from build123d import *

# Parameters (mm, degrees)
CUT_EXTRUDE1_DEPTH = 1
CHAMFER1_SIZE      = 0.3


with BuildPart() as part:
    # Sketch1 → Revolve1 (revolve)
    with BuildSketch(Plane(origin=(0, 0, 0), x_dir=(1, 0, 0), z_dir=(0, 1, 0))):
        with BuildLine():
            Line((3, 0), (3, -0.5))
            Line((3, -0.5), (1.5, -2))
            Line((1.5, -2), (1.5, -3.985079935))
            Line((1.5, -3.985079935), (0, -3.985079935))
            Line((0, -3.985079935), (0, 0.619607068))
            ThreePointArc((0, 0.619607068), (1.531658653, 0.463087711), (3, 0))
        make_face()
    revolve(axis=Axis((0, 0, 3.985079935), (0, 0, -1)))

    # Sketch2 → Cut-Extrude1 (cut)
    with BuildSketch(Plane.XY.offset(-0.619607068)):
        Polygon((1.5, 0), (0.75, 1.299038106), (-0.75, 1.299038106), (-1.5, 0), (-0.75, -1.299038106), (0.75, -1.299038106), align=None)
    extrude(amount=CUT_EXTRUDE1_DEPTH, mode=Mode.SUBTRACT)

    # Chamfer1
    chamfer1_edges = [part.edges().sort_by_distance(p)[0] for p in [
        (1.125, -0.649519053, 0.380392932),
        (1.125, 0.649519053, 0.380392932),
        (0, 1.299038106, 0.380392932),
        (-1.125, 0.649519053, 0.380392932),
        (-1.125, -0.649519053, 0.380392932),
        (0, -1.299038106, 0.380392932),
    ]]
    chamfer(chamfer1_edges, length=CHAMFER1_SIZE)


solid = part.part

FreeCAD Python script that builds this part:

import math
import FreeCAD as App
import Part
import Sketcher
from FreeCAD import Vector
Q = App.Units.Quantity


def edges_at(feature, points):
    """Names of the edges that pass closest to the given points."""
    edges = feature.Shape.Edges
    near = lambda p: min(range(len(edges)), key=lambda i: edges[i].distToShape(Part.Vertex(*p))[0])
    return sorted({f"Edge{near(p) + 1}" for p in points})

doc = App.newDocument("Part")
body = doc.addObject("PartDesign::Body", "Body")

sketch1 = body.newObject("Sketcher::SketchObject", "Sketch")
sketch1.AttachmentSupport = (doc.getObject("XZ_Plane"), [""])
sketch1.MapMode = "FlatFace"
sketch1.addGeometry(Part.LineSegment(Vector(3, 0.5, 0), Vector(3, 0, 0)), False)
sketch1.addGeometry(Part.ArcOfCircle(Part.Circle(Vector(0, 7, 0), Vector(0, 0, 1), 7.6), math.radians(-90), math.radians(-67)), False)
sketch1.addGeometry(Part.LineSegment(Vector(0, -0.6, 0), Vector(0, 4, 0)), False)
sketch1.addGeometry(Part.LineSegment(Vector(0, 4, 0), Vector(1.5, 4, 0)), False)
sketch1.addGeometry(Part.LineSegment(Vector(1.5, 4, 0), Vector(1.5, 2, 0)), False)
sketch1.addGeometry(Part.LineSegment(Vector(1.5, 2, 0), Vector(3, 0.5, 0)), False)
sketch1.addConstraint(Sketcher.Constraint("Coincident", 0, 2, 1, 2))
sketch1.addConstraint(Sketcher.Constraint("Coincident", 1, 1, 2, 1))
sketch1.addConstraint(Sketcher.Constraint("Coincident", 2, 2, 3, 1))
sketch1.addConstraint(Sketcher.Constraint("Coincident", 3, 2, 4, 1))
sketch1.addConstraint(Sketcher.Constraint("Coincident", 4, 2, 5, 1))
sketch1.addConstraint(Sketcher.Constraint("Coincident", 5, 2, 0, 1))
sketch1.addConstraint(Sketcher.Constraint("Vertical", 0))
sketch1.addConstraint(Sketcher.Constraint("Vertical", 2))
sketch1.addConstraint(Sketcher.Constraint("Horizontal", 3))
sketch1.addConstraint(Sketcher.Constraint("Vertical", 4))
sketch1.addConstraint(Sketcher.Constraint("PointOnObject", 1, 3, -2))
sketch1.addConstraint(Sketcher.Constraint("PointOnObject", 0, 2, -1))
sketch1.addConstraint(Sketcher.Constraint("PointOnObject", 1, 1, -2))
sketch1.addConstraint(Sketcher.Constraint("Angle", 5, Q("-45 deg")))
sketch1.addConstraint(Sketcher.Constraint("DistanceX", 3, 1, 3, 2, 1.5))
sketch1.addConstraint(Sketcher.Constraint("DistanceY", 0, 2, 0, 1, 0.5))
sketch1.addConstraint(Sketcher.Constraint("DistanceX", -1, 1, 0, 2, 3.0))
sketch1.addConstraint(Sketcher.Constraint("Radius", 1, 7.572471))
sketch1.addConstraint(Sketcher.Constraint("DistanceY", 4, 2, 4, 1, 1.98508))
revolution = body.newObject("PartDesign::Revolution", "Revolution")
revolution.Profile = sketch1
revolution.ReferenceAxis = (sketch1, ["V_Axis"])
revolution.Angle = 360

sketch2 = body.newObject("Sketcher::SketchObject", "Sketch001")
sketch2.AttachmentSupport = (doc.getObject("XY_Plane"), [""])
sketch2.MapMode = "FlatFace"
sketch2.AttachmentOffset = App.Placement(Vector(0, 0, -0.619607), App.Rotation())
sketch2.addGeometry(Part.LineSegment(Vector(1.5, 0, 0), Vector(0.8, 1.3, 0)), False)
sketch2.addGeometry(Part.LineSegment(Vector(0.8, 1.3, 0), Vector(-0.8, 1.3, 0)), False)
sketch2.addGeometry(Part.LineSegment(Vector(-0.8, 1.3, 0), Vector(-1.5, 0, 0)), False)
sketch2.addGeometry(Part.LineSegment(Vector(-1.5, 0, 0), Vector(-0.8, -1.3, 0)), False)
sketch2.addGeometry(Part.LineSegment(Vector(-0.8, -1.3, 0), Vector(0.8, -1.3, 0)), False)
sketch2.addGeometry(Part.LineSegment(Vector(0.8, -1.3, 0), Vector(1.5, 0, 0)), False)
sketch2.addConstraint(Sketcher.Constraint("Coincident", 0, 2, 1, 1))
sketch2.addConstraint(Sketcher.Constraint("Coincident", 1, 2, 2, 1))
sketch2.addConstraint(Sketcher.Constraint("Coincident", 2, 2, 3, 1))
sketch2.addConstraint(Sketcher.Constraint("Coincident", 3, 2, 4, 1))
sketch2.addConstraint(Sketcher.Constraint("Coincident", 4, 2, 5, 1))
sketch2.addConstraint(Sketcher.Constraint("Coincident", 5, 2, 0, 1))
sketch2.addConstraint(Sketcher.Constraint("Horizontal", 1))
sketch2.addConstraint(Sketcher.Constraint("Horizontal", 4))
sketch2.addConstraint(Sketcher.Constraint("Symmetric", 0, 2, 3, 2, -1, 1))
sketch2.addConstraint(Sketcher.Constraint("Symmetric", 2, 2, 5, 2, -1, 1))
sketch2.addConstraint(Sketcher.Constraint("PointOnObject", 2, 2, -1))
sketch2.addConstraint(Sketcher.Constraint("Parallel", 2, 5))
sketch2.addConstraint(Sketcher.Constraint("Vertical", 1, 2, 3, 2))
sketch2.addConstraint(Sketcher.Constraint("Angle", 0, Q("120 deg")))
sketch2.addConstraint(Sketcher.Constraint("DistanceX", 1, 2, 1, 1, 1.5))
sketch2.addConstraint(Sketcher.Constraint("DistanceX", 2, 2, 5, 2, 3.0))
pocket1 = body.newObject("PartDesign::Pocket", "Pocket")
pocket1.Profile = sketch2
pocket1.Length = 1
pocket1.Reversed = True
doc.recompute()

chamfer = body.newObject("PartDesign::Chamfer", "Chamfer")
chamfer.Base = (pocket1, edges_at(pocket1, [
    (1.125, -0.65, 0.38),
    (1.125, 0.65, 0.38),
    (0, 1.299, 0.38),
    (-1.125, 0.65, 0.38),
    (-1.125, -0.65, 0.38),
    (0, -1.299, 0.38),
]))
chamfer.Size = 0.3

doc.recompute()
